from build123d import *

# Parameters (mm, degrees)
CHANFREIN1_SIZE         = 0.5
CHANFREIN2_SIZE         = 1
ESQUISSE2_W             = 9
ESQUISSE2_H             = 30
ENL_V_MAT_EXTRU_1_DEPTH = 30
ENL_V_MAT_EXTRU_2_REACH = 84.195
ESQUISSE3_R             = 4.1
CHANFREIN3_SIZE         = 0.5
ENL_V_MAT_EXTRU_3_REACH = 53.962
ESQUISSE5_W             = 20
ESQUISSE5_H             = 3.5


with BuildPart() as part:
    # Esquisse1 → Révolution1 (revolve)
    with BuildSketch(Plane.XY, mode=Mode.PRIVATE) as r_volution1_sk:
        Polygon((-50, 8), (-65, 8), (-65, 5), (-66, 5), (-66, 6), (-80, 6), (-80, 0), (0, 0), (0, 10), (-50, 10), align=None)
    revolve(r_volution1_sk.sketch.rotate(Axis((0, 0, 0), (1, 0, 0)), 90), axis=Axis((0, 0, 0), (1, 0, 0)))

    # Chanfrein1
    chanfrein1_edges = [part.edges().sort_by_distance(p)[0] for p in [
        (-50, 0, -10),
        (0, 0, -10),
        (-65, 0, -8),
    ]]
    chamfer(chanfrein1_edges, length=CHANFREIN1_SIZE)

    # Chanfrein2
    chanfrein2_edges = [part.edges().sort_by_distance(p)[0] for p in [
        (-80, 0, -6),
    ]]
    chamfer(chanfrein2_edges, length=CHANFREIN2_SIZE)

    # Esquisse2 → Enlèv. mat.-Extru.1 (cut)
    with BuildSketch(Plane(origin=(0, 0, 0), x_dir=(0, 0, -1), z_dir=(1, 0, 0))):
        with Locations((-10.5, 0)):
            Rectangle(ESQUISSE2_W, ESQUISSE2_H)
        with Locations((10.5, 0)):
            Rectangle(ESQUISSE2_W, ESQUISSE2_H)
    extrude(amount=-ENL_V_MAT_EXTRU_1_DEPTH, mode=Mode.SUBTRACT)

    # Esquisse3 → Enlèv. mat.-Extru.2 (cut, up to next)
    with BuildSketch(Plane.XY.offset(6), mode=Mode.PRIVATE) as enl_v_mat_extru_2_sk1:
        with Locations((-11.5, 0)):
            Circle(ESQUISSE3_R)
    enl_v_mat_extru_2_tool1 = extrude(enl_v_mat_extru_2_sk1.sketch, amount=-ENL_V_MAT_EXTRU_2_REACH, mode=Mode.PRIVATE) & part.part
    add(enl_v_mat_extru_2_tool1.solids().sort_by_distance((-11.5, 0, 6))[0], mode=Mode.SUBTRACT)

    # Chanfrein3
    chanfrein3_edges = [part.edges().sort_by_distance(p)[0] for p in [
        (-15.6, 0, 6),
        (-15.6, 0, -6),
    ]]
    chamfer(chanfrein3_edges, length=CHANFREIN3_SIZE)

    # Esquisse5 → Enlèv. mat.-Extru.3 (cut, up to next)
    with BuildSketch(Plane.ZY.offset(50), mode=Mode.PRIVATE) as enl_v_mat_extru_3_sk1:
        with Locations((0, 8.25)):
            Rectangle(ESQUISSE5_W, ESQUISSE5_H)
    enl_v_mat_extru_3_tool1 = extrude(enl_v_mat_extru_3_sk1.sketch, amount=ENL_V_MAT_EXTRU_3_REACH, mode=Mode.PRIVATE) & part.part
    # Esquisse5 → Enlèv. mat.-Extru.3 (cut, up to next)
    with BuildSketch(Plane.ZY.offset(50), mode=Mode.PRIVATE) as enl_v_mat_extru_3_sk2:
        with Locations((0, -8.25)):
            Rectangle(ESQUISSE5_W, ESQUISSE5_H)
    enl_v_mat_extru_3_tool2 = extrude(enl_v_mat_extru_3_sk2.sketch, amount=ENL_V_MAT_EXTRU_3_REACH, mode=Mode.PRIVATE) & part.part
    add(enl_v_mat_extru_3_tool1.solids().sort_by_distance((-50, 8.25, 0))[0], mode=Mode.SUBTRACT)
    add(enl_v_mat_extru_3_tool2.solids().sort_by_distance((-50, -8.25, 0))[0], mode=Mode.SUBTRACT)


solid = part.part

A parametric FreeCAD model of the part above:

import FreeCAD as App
import Part
import Sketcher


def edges_at(feature, points):
    """Names of the edges that pass closest to the given points."""
    edges = feature.Shape.Edges
    near = lambda p: min(range(len(edges)), key=lambda i: edges[i].distToShape(Part.Vertex(*p))[0])
    return sorted({f"Edge{near(p) + 1}" for p in points})


def add_polygon(sketch, points):
    """Adds a closed chain of lines whose ends are joined by coincident constraints."""
    first, n = sketch.GeometryCount, len(points)
    for a, b in zip(points, points[1:] + points[:1]):
        sketch.addGeometry(Part.LineSegment(App.Vector(*a, 0), App.Vector(*b, 0)), False)
    for i in range(n):
        sketch.addConstraint(Sketcher.Constraint("Coincident", first + i, 2, first + (i + 1) % n, 1))

doc = App.newDocument("Part")
params = doc.addObject("Spreadsheet::Sheet", "Params")
for row, (alias, value) in enumerate([
    ("sketch1_width", "15 mm"),
    ("sketch1_width2", "1 mm"),
    ("sketch1_width3", "14 mm"),
    ("sketch1_width4", "80 mm"),
    ("sketch1_height", "3 mm"),
    ("revolution_angle", "360 deg"),
    ("chamfer_size", "0.5 mm"),
    ("chamfer2_size", "1 mm"),
    ("sketch2_width", "30 mm"),
    ("sketch2_height", "9 mm"),
    ("pocket1_length", "30 mm"),
    ("sketch3_diameter", "8.2 mm"),
    ("chamfer3_size", "0.5 mm"),
    ("sketch4_height", "20 mm"),
    ("sketch4_width", "3.5 mm"),
    ("pocket3_length", "15 mm"),
    ("sketch5_height", "20 mm"),
    ("sketch5_width", "3.5 mm"),
    ("pocket4_length", "15 mm"),
], start=1):
    params.set(f"A{row}", alias)
    params.set(f"B{row}", "=" + value)
    params.setAlias(f"B{row}", alias)

body = doc.addObject("PartDesign::Body", "Body")

# Sketch on XY plane
sketch1 = body.newObject("Sketcher::SketchObject", "Sketch")
sketch1.AttachmentSupport = (doc.getObject("XY_Plane"), [""])
sketch1.MapMode = "FlatFace"
add_polygon(sketch1, [(-50, 8), (-65, 8), (-65, 5), (-66, 5), (-66, 6), (-80, 6), (-80, 0), (0, 0), (0, 10), (-50, 10)])  # lines 0-9
sketch1.addConstraint(Sketcher.Constraint("Horizontal", 0))
sketch1.addConstraint(Sketcher.Constraint("Vertical", 1))
sketch1.addConstraint(Sketcher.Constraint("Horizontal", 2))
sketch1.addConstraint(Sketcher.Constraint("Vertical", 3))
sketch1.addConstraint(Sketcher.Constraint("Horizontal", 4))
sketch1.addConstraint(Sketcher.Constraint("Vertical", 5))
sketch1.addConstraint(Sketcher.Constraint("Horizontal", 6))
sketch1.addConstraint(Sketcher.Constraint("Vertical", 7))
sketch1.addConstraint(Sketcher.Constraint("Horizontal", 8))
sketch1.addConstraint(Sketcher.Constraint("Vertical", 9))
sketch1.addConstraint(Sketcher.Constraint("Coincident", 6, 2, -1, 1))
sketch1.addConstraint(Sketcher.Constraint("Equal", 2, 3))
sketch1.addConstraint(Sketcher.Constraint("DistanceX", 0, 2, 0, 1, 15.0))
sketch1.addConstraint(Sketcher.Constraint("DistanceX", 2, 2, 2, 1, 1.0))
sketch1.addConstraint(Sketcher.Constraint("DistanceX", 4, 2, 4, 1, 14.0))
sketch1.addConstraint(Sketcher.Constraint("DistanceX", 6, 1, 6, 2, 80.0))
sketch1.addConstraint(Sketcher.Constraint("DistanceY", 1, 2, 1, 1, 3.0))
sketch1.addConstraint(Sketcher.Constraint("DistanceY", 5, 2, 5, 1, 6.0))
sketch1.addConstraint(Sketcher.Constraint("DistanceY", 7, 1, 7, 2, 10.0))
sketch1.setExpression("Constraints[22]", "Params.sketch1_width")
sketch1.setExpression("Constraints[23]", "Params.sketch1_width2")
sketch1.setExpression("Constraints[24]", "Params.sketch1_width3")
sketch1.setExpression("Constraints[25]", "Params.sketch1_width4")
sketch1.setExpression("Constraints[26]", "Params.sketch1_height")
revolution = body.newObject("PartDesign::Revolution", "Revolution")
revolution.Profile = sketch1
revolution.ReferenceAxis = (sketch1, ["H_Axis"])
revolution.setExpression("Angle", "Params.revolution_angle")
doc.recompute()

chamfer = body.newObject("PartDesign::Chamfer", "Chamfer")
chamfer.Base = (revolution, edges_at(revolution, [(-50, 0, -10), (0, 0, -10), (-65, 0, -8)]))
chamfer.setExpression("Size", "Params.chamfer_size")
doc.recompute()

chamfer2 = body.newObject("PartDesign::Chamfer", "Chamfer001")
chamfer2.Base = (chamfer, edges_at(chamfer, [(-80, 0, -6)]))
chamfer2.setExpression("Size", "Params.chamfer2_size")

# Sketch on YZ plane
sketch2 = body.newObject("Sketcher::SketchObject", "Sketch001")
sketch2.AttachmentSupport = (doc.getObject("YZ_Plane"), [""])
sketch2.MapMode = "FlatFace"
add_polygon(sketch2, [(15, 15), (-15, 15), (-15, 6), (15, 6)])  # lines 0-3
add_polygon(sketch2, [(15, -6), (-15, -6), (-15, -15), (15, -15)])  # lines 4-7
sketch2.addConstraint(Sketcher.Constraint("Horizontal", 0))
sketch2.addConstraint(Sketcher.Constraint("Vertical", 1))
sketch2.addConstraint(Sketcher.Constraint("Horizontal", 2))
sketch2.addConstraint(Sketcher.Constraint("Vertical", 3))
sketch2.addConstraint(Sketcher.Constraint("Horizontal", 4))
sketch2.addConstraint(Sketcher.Constraint("Vertical", 5))
sketch2.addConstraint(Sketcher.Constraint("Horizontal", 6))
sketch2.addConstraint(Sketcher.Constraint("Vertical", 7))
sketch2.addConstraint(Sketcher.Constraint("Symmetric", 2, 2, 4, 2, -1, 1))
sketch2.addConstraint(Sketcher.Constraint("Symmetric", 0, 2, 6, 2, -1, 1))
sketch2.addConstraint(Sketcher.Constraint("Vertical", 1, 2, 4, 2))
sketch2.addConstraint(Sketcher.Constraint("DistanceX", 0, 2, 0, 1, 30.0))
sketch2.addConstraint(Sketcher.Constraint("DistanceY", 1, 2, 1, 1, 9.0))
sketch2.addConstraint(Sketcher.Constraint("DistanceY", -1, 1, 0, 2, 15.0))
sketch2.setExpression("Constraints[19]", "Params.sketch2_width")
sketch2.setExpression("Constraints[20]", "Params.sketch2_height")
pocket1 = body.newObject("PartDesign::Pocket", "Pocket")
pocket1.Profile = sketch2
pocket1.setExpression("Length", "Params.pocket1_length")

# Sketch on XY plane
sketch3 = body.newObject("Sketcher::SketchObject", "Sketch002")
sketch3.AttachmentSupport = (doc.getObject("XY_Plane"), [""])
sketch3.MapMode = "FlatFace"
sketch3.AttachmentOffset = App.Placement(App.Vector(0, 0, 6), App.Rotation())
sketch3.addGeometry(Part.Circle(App.Vector(-11.5, 0, 0), App.Vector(0, 0, 1), 4.1), False)
sketch3.addConstraint(Sketcher.Constraint("PointOnObject", 0, 3, -1))
sketch3.addConstraint(Sketcher.Constraint("Diameter", 0, 8.2))
sketch3.addConstraint(Sketcher.Constraint("DistanceX", 0, 3, -1, 1, 11.5))
sketch3.setExpression("Constraints[1]", "Params.sketch3_diameter")
pocket2 = body.newObject("PartDesign::Pocket", "Pocket001")
pocket2.Profile = sketch3
pocket2.Type = "UpToFirst"
doc.recompute()

chamfer3 = body.newObject("PartDesign::Chamfer", "Chamfer002")
chamfer3.Base = (pocket2, edges_at(pocket2, [(-15.6, 0, 6), (-15.6, 0, -6)]))
chamfer3.setExpression("Size", "Params.chamfer3_size")

# Sketch on YZ plane
sketch4 = body.newObject("Sketcher::SketchObject", "Sketch003")
sketch4.AttachmentSupport = (doc.getObject("YZ_Plane"), [""])
sketch4.MapMode = "FlatFace"
sketch4.AttachmentOffset = App.Placement(App.Vector(0, 0, -50), App.Rotation())
add_polygon(sketch4, [(10, -10), (6.5, -10), (6.5, 10), (10, 10)])  # lines 0-3
sketch4.addConstraint(Sketcher.Constraint("Horizontal", 0))
sketch4.addConstraint(Sketcher.Constraint("Vertical", 1))
sketch4.addConstraint(Sketcher.Constraint("Horizontal", 2))
sketch4.addConstraint(Sketcher.Constraint("Vertical", 3))
sketch4.addConstraint(Sketcher.Constraint("DistanceY", 1, 1, 1, 2, 20.0))
sketch4.addConstraint(Sketcher.Constraint("DistanceX", 0, 2, 0, 1, 3.5))
sketch4.addConstraint(Sketcher.Constraint("DistanceY", 0, 2, -1, 1, 10.0))
sketch4.addConstraint(Sketcher.Constraint("DistanceX", -1, 1, 2, 2, 10.0))
sketch4.setExpression("Constraints[8]", "Params.sketch4_height")
sketch4.setExpression("Constraints[9]", "Params.sketch4_width")
pocket3 = body.newObject("PartDesign::Pocket", "Pocket002")
pocket3.Profile = sketch4
pocket3.setExpression("Length", "Params.pocket3_length")

# Sketch on YZ plane
sketch5 = body.newObject("Sketcher::SketchObject", "Sketch004")
sketch5.AttachmentSupport = (doc.getObject("YZ_Plane"), [""])
sketch5.MapMode = "FlatFace"
sketch5.AttachmentOffset = App.Placement(App.Vector(0, 0, -50), App.Rotation())
add_polygon(sketch5, [(-6.5, -10), (-10, -10), (-10, 10), (-6.5, 10)])  # lines 0-3
sketch5.addConstraint(Sketcher.Constraint("Horizontal", 0))
sketch5.addConstraint(Sketcher.Constraint("Vertical", 1))
sketch5.addConstraint(Sketcher.Constraint("Horizontal", 2))
sketch5.addConstraint(Sketcher.Constraint("Vertical", 3))
sketch5.addConstraint(Sketcher.Constraint("DistanceY", 1, 1, 1, 2, 20.0))
sketch5.addConstraint(Sketcher.Constraint("DistanceX", 0, 2, 0, 1, 3.5))
sketch5.addConstraint(Sketcher.Constraint("DistanceX", 0, 2, -1, 1, 10.0))
sketch5.addConstraint(Sketcher.Constraint("DistanceY", 0, 2, -1, 1, 10.0))
sketch5.setExpression("Constraints[8]", "Params.sketch5_height")
sketch5.setExpression("Constraints[9]", "Params.sketch5_width")
pocket4 = body.newObject("PartDesign::Pocket", "Pocket003")
pocket4.Profile = sketch5
pocket4.setExpression("Length", "Params.pocket4_length")

doc.recompute()
